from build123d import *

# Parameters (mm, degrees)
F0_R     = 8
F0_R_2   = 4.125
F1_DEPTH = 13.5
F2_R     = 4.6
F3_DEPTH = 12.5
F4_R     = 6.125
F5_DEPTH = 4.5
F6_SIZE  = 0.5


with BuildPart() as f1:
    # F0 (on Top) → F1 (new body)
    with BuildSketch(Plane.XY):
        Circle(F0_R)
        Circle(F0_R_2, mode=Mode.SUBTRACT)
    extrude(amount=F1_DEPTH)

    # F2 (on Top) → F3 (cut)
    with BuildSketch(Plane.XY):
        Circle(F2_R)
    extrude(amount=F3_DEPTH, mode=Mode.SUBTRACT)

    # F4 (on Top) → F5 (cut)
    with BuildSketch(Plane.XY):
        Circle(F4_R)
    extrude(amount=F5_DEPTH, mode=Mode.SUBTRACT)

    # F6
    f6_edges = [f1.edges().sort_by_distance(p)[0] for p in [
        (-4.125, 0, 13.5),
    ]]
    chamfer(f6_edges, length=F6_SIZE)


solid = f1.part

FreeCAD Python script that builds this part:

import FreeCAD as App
import Part
import Sketcher


def edges_at(feature, points):
    """Names of the edges that pass closest to the given points."""
    edges = feature.Shape.Edges
    near = lambda p: min(range(len(edges)), key=lambda i: edges[i].distToShape(Part.Vertex(*p))[0])
    return sorted({f"Edge{near(p) + 1}" for p in points})

doc = App.newDocument("Part")
params = doc.addObject("Spreadsheet::Sheet", "Params")
for row, (alias, value) in enumerate([
    ("sketch1_diameter", "16 mm"),
    ("sketch1_diameter2", "8.25 mm"),
    ("pad1_length", "13.5 mm"),
    ("sketch2_diameter", "9.2 mm"),
    ("pocket1_length", "12.5 mm"),
    ("sketch3_diameter", "12.25 mm"),
    ("pocket2_length", "4.5 mm"),
    ("chamfer_size", "0.5 mm"),
], start=1):
    params.set(f"A{row}", alias)
    params.set(f"B{row}", "=" + value)
    params.setAlias(f"B{row}", alias)

body = doc.addObject("PartDesign::Body", "Body")

# Sketch on XY plane
sketch1 = body.newObject("Sketcher::SketchObject", "Sketch")
sketch1.AttachmentSupport = (doc.getObject("XY_Plane"), [""])
sketch1.MapMode = "FlatFace"
sketch1.addGeometry([
    Part.Circle(App.Vector(0, 0, 0), App.Vector(0, 0, 1), 8),
    Part.Circle(App.Vector(0, 0, 0), App.Vector(0, 0, 1), 4.1),
], False)
sketch1.addConstraint([
    Sketcher.Constraint("Coincident", 0, 3, -1, 1),
    Sketcher.Constraint("Coincident", 1, 3, -1, 1),
    Sketcher.Constraint("Diameter", 0, 16.0),
    Sketcher.Constraint("Diameter", 1, 8.25),
])
sketch1.setExpression("Constraints[2]", "Params.sketch1_diameter")
sketch1.setExpression("Constraints[3]", "Params.sketch1_diameter2")
pad1 = body.newObject("PartDesign::Pad", "Pad")
pad1.Profile = sketch1
pad1.setExpression("Length", "Params.pad1_length")

# Sketch on XY plane
sketch2 = body.newObject("Sketcher::SketchObject", "Sketch001")
sketch2.AttachmentSupport = (doc.getObject("XY_Plane"), [""])
sketch2.MapMode = "FlatFace"
sketch2.addGeometry(Part.Circle(App.Vector(0, 0, 0), App.Vector(0, 0, 1), 4.6), False)
sketch2.addConstraint([
    Sketcher.Constraint("Coincident", 0, 3, -1, 1),
    Sketcher.Constraint("Diameter", 0, 9.2),
])
sketch2.setExpression("Constraints[1]", "Params.sketch2_diameter")
pocket1 = body.newObject("PartDesign::Pocket", "Pocket")
pocket1.Profile = sketch2
pocket1.setExpression("Length", "Params.pocket1_length")
pocket1.Reversed = True

# Sketch on XY plane
sketch3 = body.newObject("Sketcher::SketchObject", "Sketch002")
sketch3.AttachmentSupport = (doc.getObject("XY_Plane"), [""])
sketch3.MapMode = "FlatFace"
sketch3.addGeometry(Part.Circle(App.Vector(0, 0, 0), App.Vector(0, 0, 1), 6), False)
sketch3.addConstraint([
    Sketcher.Constraint("Coincident", 0, 3, -1, 1),
    Sketcher.Constraint("Diameter", 0, 12.25),
])
sketch3.setExpression("Constraints[1]", "Params.sketch3_diameter")
pocket2 = body.newObject("PartDesign::Pocket", "Pocket001")
pocket2.Profile = sketch3
pocket2.setExpression("Length", "Params.pocket2_length")
pocket2.Reversed = True
doc.recompute()

chamfer = body.newObject("PartDesign::Chamfer", "Chamfer")
chamfer.Base = (pocket2, edges_at(pocket2, [(-4.125, 0, 13.5)]))
chamfer.setExpression("Size", "Params.chamfer_size")

doc.recompute()
